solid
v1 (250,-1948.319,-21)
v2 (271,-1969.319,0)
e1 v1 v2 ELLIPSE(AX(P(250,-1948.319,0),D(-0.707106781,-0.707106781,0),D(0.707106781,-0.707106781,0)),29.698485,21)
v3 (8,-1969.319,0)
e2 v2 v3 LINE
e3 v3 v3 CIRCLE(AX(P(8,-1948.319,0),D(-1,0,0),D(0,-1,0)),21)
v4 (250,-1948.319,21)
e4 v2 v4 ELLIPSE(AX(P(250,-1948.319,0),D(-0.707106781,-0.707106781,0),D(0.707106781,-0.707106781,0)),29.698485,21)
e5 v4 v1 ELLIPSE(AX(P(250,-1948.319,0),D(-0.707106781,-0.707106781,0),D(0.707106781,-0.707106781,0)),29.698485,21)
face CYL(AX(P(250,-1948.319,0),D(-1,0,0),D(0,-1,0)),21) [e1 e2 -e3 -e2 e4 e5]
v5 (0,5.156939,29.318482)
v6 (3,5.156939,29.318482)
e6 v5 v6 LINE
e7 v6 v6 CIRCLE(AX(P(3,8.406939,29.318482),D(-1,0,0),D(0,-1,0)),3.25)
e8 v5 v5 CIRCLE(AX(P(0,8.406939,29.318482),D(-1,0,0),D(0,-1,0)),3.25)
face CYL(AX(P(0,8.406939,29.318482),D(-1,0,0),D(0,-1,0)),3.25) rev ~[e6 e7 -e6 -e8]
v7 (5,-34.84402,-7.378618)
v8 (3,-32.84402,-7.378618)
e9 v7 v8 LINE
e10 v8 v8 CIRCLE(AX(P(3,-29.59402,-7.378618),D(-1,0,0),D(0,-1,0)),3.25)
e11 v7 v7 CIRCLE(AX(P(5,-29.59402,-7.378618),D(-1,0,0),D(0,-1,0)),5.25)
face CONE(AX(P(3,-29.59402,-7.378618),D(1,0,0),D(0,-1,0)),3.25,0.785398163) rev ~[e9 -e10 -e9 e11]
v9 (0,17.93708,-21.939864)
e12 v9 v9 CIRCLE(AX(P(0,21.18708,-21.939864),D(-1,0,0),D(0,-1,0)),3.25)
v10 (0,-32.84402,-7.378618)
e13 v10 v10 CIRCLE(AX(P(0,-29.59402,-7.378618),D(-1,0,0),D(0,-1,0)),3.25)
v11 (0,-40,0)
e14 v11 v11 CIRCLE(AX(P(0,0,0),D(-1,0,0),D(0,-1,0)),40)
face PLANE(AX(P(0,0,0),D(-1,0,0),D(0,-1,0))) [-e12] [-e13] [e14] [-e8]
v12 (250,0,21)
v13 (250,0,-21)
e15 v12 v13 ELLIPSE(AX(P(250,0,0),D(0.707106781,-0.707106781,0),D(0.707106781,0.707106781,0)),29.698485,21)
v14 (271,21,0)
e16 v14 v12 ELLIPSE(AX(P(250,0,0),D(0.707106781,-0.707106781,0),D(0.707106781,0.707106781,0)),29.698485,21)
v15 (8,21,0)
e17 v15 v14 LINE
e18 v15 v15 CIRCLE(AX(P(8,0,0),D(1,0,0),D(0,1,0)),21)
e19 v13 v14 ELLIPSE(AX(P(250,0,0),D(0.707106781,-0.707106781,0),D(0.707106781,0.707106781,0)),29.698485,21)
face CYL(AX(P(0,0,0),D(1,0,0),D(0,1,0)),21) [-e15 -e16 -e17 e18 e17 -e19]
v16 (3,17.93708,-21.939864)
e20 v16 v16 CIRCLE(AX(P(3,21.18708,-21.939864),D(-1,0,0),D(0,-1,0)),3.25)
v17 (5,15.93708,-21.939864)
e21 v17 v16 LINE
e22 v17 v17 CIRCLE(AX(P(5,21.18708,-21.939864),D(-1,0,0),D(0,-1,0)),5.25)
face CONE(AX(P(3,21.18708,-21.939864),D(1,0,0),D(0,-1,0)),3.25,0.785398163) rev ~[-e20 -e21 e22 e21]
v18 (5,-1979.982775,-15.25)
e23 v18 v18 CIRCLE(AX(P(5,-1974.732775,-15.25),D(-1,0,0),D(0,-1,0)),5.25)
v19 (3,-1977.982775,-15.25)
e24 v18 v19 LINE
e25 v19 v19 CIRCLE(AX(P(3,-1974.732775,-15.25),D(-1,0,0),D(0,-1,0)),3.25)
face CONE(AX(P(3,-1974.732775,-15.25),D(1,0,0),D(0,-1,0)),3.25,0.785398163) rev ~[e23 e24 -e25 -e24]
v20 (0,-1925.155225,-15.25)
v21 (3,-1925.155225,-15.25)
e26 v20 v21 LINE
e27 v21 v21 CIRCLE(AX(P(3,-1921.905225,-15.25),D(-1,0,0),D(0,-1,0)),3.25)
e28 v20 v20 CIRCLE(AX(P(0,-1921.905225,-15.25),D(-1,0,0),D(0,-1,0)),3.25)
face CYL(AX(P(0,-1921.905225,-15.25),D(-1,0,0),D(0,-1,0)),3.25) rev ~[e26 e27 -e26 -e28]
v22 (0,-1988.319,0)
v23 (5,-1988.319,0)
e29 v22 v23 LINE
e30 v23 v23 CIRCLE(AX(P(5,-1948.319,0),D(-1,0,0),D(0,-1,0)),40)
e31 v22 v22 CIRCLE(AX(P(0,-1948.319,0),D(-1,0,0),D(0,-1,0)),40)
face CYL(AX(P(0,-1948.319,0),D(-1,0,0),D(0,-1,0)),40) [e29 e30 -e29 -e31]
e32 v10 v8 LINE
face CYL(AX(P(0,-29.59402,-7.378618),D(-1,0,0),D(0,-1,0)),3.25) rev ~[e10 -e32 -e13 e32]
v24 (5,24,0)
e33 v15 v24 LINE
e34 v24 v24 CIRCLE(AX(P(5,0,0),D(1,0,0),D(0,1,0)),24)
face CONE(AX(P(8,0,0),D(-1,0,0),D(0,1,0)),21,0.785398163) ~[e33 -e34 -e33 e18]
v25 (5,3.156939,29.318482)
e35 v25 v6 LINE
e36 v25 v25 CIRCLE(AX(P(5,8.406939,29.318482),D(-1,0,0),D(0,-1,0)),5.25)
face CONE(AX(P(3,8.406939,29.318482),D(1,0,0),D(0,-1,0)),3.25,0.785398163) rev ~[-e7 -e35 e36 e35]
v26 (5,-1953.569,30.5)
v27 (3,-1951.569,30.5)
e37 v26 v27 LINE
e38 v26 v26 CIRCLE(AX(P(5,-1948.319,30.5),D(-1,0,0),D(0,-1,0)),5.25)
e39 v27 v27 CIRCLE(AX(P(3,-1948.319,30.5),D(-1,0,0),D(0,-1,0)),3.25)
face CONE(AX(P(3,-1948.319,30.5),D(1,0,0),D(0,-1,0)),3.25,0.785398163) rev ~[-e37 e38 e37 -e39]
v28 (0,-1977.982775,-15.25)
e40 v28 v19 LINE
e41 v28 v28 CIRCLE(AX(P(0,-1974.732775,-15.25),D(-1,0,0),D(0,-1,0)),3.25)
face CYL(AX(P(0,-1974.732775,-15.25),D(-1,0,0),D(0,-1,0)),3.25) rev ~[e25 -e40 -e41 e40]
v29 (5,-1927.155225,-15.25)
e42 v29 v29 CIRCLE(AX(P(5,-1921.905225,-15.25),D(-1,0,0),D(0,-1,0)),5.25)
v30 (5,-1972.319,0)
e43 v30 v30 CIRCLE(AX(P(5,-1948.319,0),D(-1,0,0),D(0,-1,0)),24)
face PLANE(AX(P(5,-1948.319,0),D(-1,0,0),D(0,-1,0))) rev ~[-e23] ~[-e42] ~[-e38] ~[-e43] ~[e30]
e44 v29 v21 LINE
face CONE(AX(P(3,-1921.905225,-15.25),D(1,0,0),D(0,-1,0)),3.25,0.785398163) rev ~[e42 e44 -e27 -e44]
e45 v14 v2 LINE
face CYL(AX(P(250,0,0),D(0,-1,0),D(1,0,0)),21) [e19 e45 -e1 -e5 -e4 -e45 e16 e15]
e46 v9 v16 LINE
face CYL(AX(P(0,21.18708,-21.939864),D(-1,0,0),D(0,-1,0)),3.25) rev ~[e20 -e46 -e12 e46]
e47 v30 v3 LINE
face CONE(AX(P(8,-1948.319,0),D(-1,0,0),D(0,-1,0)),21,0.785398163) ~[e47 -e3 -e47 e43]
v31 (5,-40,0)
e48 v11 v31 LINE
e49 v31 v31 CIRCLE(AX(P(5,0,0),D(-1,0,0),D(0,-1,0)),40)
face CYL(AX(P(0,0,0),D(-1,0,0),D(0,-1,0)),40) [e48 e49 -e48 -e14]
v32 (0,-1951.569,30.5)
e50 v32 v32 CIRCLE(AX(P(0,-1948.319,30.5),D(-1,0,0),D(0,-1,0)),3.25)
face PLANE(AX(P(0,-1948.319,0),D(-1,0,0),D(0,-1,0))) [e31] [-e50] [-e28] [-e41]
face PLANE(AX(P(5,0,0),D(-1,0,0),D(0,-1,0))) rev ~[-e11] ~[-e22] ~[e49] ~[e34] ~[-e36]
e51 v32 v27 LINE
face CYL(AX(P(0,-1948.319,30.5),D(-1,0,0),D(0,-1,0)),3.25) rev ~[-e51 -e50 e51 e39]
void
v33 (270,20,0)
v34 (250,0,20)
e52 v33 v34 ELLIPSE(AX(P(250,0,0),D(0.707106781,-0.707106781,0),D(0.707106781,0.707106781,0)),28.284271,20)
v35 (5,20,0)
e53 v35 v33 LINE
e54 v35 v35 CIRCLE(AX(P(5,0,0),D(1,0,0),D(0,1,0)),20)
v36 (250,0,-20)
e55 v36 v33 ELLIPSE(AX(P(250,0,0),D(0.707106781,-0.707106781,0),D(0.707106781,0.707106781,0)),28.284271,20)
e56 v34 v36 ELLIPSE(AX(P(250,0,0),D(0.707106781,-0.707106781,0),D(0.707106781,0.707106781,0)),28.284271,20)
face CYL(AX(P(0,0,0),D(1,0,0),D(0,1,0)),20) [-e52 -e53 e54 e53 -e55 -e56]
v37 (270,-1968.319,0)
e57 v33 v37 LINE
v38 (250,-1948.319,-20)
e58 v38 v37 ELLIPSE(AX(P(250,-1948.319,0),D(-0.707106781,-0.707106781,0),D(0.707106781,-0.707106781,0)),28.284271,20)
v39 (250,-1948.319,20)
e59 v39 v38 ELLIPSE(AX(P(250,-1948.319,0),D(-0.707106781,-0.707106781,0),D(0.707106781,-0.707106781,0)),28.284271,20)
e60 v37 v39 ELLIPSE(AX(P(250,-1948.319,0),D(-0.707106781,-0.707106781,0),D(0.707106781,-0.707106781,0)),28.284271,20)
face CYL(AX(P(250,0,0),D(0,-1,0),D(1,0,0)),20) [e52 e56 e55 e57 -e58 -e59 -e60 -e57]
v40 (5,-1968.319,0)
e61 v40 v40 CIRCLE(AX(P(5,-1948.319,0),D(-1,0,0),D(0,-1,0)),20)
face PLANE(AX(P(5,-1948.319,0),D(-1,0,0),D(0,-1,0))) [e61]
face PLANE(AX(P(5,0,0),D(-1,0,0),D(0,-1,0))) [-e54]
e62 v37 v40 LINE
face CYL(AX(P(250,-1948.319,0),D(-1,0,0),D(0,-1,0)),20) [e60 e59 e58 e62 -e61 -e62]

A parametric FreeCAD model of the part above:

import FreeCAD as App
import Part
import Sketcher
from FreeCAD import Vector
Q = App.Units.Quantity


def edges_at(feature, points):
    """Names of the edges that pass closest to the given points."""
    edges = feature.Shape.Edges
    near = lambda p: min(range(len(edges)), key=lambda i: edges[i].distToShape(Part.Vertex(*p))[0])
    return sorted({f"Edge{near(p) + 1}" for p in points})

doc = App.newDocument("Part")
body = doc.addObject("PartDesign::Body", "Body")

# Sketch on YZ plane
sketch1 = doc.addObject("Sketcher::SketchObject", "Sketch")
body.addObject(sketch1)
sketch1.AttachmentSupport = (doc.YZ_Plane, [""])
sketch1.MapMode = "FlatFace"
sketch1.addGeometry(Part.Circle(Vector(0, 0, 0), Vector(0, 0, 1), 21), False)
sketch1.addGeometry(Part.Circle(Vector(0, 0, 0), Vector(0, 0, 1), 20), False)
sketch1.addConstraint(Sketcher.Constraint("Coincident", 0, 3, -1, 1))
sketch1.addConstraint(Sketcher.Constraint("Coincident", 1, 3, -1, 1))
sketch1.addConstraint(Sketcher.Constraint("Diameter", 0, Q("42 mm")))
sketch1.addConstraint(Sketcher.Constraint("Diameter", 1, Q("40 mm")))

# Sketch on XY plane
sketch2 = doc.addObject("Sketcher::SketchObject", "Sketch001")
body.addObject(sketch2)
sketch2.AttachmentSupport = (doc.XY_Plane, [""])
sketch2.MapMode = "FlatFace"
sketch2.addGeometry(Part.LineSegment(Vector(0, 0, 0), Vector(250, 0, 0)), False)
sketch2.addGeometry(Part.LineSegment(Vector(250, 0, 0), Vector(250, -1948, 0)), False)
sketch2.addGeometry(Part.LineSegment(Vector(250, -1948, 0), Vector(0, -1948, 0)), False)
sketch2.addConstraint(Sketcher.Constraint("Coincident", 0, 2, 1, 1))
sketch2.addConstraint(Sketcher.Constraint("Coincident", 1, 2, 2, 1))
sketch2.addConstraint(Sketcher.Constraint("Horizontal", 0))
sketch2.addConstraint(Sketcher.Constraint("Vertical", 1))
sketch2.addConstraint(Sketcher.Constraint("Horizontal", 2))
sketch2.addConstraint(Sketcher.Constraint("Coincident", 0, 1, -1, 1))
sketch2.addConstraint(Sketcher.Constraint("PointOnObject", 2, 2, -2))
sketch2.addConstraint(Sketcher.Constraint("DistanceX", 0, 1, 0, 2, Q("250 mm")))
sketch2.addConstraint(Sketcher.Constraint("DistanceY", 1, 2, 1, 1, Q("1948.319 mm")))
doc.recompute()

additivepipe = doc.addObject("PartDesign::AdditivePipe", "AdditivePipe")
body.addObject(additivepipe)
additivepipe.Profile = sketch1
additivepipe.Spine = (sketch2, ["Edge1", "Edge2", "Edge3"])
additivepipe.Transition = "Right corner"

# Sketch on YZ plane
sketch3 = doc.addObject("Sketcher::SketchObject", "Sketch002")
body.addObject(sketch3)
sketch3.AttachmentSupport = (doc.YZ_Plane, [""])
sketch3.MapMode = "FlatFace"
sketch3.addGeometry(Part.Circle(Vector(-1948.3, 0, 0), Vector(0, 0, 1), 40), False)
sketch3.addGeometry(Part.Circle(Vector(-1921.9, -15.2, 0), Vector(0, 0, 1), 3.2), False)
sketch3.addGeometry(Part.Circle(Vector(-1974.7, -15.2, 0), Vector(0, 0, 1), 3.2), False)
sketch3.addGeometry(Part.Circle(Vector(-1948.3, 30.5, 0), Vector(0, 0, 1), 3.2), False)
sketch3.addGeometry(Part.Circle(Vector(0, 0, 0), Vector(0, 0, 1), 40), False)
sketch3.addGeometry(Part.Circle(Vector(21.2, -21.9, 0), Vector(0, 0, 1), 3.2), False)
sketch3.addGeometry(Part.Circle(Vector(-29.6, -7.4, 0), Vector(0, 0, 1), 3.2), False)
sketch3.addGeometry(Part.Circle(Vector(8.4, 29.3, 0), Vector(0, 0, 1), 3.2), False)
sketch3.addConstraint(Sketcher.Constraint("Coincident", 4, 3, -1, 1))
sketch3.addConstraint(Sketcher.Constraint("Equal", 1, 2))
sketch3.addConstraint(Sketcher.Constraint("Equal", 2, 3))
sketch3.addConstraint(Sketcher.Constraint("Equal", 0, 4))
sketch3.addConstraint(Sketcher.Constraint("Equal", 3, 5))
sketch3.addConstraint(Sketcher.Constraint("Equal", 5, 6))
sketch3.addConstraint(Sketcher.Constraint("Equal", 6, 7))
sketch3.addConstraint(Sketcher.Constraint("PointOnObject", 0, 3, -1))
sketch3.addConstraint(Sketcher.Constraint("Horizontal", 1, 3, 2, 3))
sketch3.addConstraint(Sketcher.Constraint("Vertical", 0, 3, 3, 3))
sketch3.addConstraint(Sketcher.Constraint("Diameter", 0, Q("80 mm")))
sketch3.addConstraint(Sketcher.Constraint("Diameter", 1, Q("6.5 mm")))
sketch3.addConstraint(Sketcher.Constraint("DistanceY", -1, 1, 3, 3, Q("30.5 mm")))
sketch3.addConstraint(Sketcher.Constraint("DistanceY", 1, 3, -1, 1, Q("15.25 mm")))
sketch3.addConstraint(Sketcher.Constraint("DistanceX", 0, 3, -1, 1, Q("1948.319 mm")))
sketch3.addConstraint(Sketcher.Constraint("DistanceX", 6, 3, 5, 3, Q("50.7811 mm")))
sketch3.addConstraint(Sketcher.Constraint("DistanceY", 6, 3, 7, 3, Q("36.6971 mm")))
sketch3.addConstraint(Sketcher.Constraint("DistanceX", -1, 1, 5, 3, Q("21.18708 mm")))
sketch3.addConstraint(Sketcher.Constraint("DistanceX", -1, 1, 7, 3, Q("8.406939 mm")))
sketch3.addConstraint(Sketcher.Constraint("DistanceY", -1, 1, 7, 3, Q("29.318482 mm")))
sketch3.addConstraint(Sketcher.Constraint("DistanceX", 2, 3, 1, 3, Q("52.82755 mm")))
sketch3.addConstraint(Sketcher.Constraint("DistanceX", 1, 3, -1, 1, Q("1921.905225 mm")))
sketch3.addConstraint(Sketcher.Constraint("DistanceY", 5, 3, -1, 1, Q("21.939864 mm")))
pad1 = doc.addObject("PartDesign::Pad", "Pad")
body.addObject(pad1)
pad1.Profile = sketch3
pad1.Length = 5
doc.recompute()

chamfer = doc.addObject("PartDesign::Chamfer", "Chamfer")
body.addObject(chamfer)
chamfer.Base = (pad1, edges_at(pad1, [
    (5, 11.657, 29.318),
    (5, -26.344, -7.379),
    (5, 24.437, -21.94),
    (5, -1945.069, 30.5),
    (5, -1971.483, -15.25),
    (5, -1918.655, -15.25),
]))
chamfer.Size = 2
doc.recompute()

chamfer2 = doc.addObject("PartDesign::Chamfer", "Chamfer001")
body.addObject(chamfer2)
chamfer2.Base = (chamfer, edges_at(chamfer, [(5, -21, 0), (5, -1927.319, 0)]))
chamfer2.Size = 3

doc.recompute()
